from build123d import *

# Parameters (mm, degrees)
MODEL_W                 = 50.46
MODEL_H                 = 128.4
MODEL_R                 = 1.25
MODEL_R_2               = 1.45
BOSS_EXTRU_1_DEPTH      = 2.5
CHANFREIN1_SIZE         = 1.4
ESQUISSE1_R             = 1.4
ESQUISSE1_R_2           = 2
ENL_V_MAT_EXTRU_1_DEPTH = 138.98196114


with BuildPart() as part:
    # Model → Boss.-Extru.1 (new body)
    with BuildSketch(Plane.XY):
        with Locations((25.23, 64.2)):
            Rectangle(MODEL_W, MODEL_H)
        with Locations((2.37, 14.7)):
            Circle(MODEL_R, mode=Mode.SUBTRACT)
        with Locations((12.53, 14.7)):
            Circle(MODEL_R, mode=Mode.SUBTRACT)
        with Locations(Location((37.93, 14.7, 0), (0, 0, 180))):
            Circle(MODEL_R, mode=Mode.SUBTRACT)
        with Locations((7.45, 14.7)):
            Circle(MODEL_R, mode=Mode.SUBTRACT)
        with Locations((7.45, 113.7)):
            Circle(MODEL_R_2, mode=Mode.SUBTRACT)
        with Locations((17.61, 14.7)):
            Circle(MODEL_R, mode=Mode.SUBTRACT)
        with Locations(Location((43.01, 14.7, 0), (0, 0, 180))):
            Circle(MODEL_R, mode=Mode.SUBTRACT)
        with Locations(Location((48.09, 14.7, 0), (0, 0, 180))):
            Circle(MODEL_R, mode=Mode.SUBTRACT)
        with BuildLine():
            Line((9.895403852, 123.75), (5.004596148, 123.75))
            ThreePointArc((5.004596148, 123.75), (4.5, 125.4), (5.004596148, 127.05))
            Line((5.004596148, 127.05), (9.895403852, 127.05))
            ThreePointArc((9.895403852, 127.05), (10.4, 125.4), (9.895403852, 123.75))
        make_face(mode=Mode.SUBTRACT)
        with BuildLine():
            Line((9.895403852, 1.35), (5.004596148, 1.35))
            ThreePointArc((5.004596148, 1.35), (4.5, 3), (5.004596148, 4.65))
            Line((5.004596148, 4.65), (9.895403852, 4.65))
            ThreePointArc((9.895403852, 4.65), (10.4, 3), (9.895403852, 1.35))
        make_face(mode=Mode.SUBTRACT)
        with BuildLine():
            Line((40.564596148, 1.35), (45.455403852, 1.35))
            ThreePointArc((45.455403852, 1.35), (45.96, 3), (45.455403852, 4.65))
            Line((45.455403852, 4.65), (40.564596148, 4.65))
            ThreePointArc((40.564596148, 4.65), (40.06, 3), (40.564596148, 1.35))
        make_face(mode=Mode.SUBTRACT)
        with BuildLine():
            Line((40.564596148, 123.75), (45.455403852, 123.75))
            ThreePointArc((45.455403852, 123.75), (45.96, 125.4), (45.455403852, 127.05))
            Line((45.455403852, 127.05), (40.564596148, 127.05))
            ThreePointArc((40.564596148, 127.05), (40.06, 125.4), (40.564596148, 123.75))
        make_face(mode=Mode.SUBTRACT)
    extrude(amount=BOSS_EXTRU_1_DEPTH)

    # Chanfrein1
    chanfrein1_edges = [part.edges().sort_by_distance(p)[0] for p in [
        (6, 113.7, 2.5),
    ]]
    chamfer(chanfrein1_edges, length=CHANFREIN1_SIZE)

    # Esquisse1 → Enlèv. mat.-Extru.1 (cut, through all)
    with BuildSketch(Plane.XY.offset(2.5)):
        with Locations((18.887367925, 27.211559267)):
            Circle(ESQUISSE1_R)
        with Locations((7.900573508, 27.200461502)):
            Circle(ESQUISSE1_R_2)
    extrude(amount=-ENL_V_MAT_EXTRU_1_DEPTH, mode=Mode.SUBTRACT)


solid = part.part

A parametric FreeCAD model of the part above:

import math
import FreeCAD as App
import Part
import Sketcher

V = App.Vector


def edges_at(feature, points):
    """Names of the edges that pass closest to the given points."""
    edges = feature.Shape.Edges
    near = lambda p: min(range(len(edges)), key=lambda i: edges[i].distToShape(Part.Vertex(*p))[0])
    return sorted({f"Edge{near(p) + 1}" for p in points})

doc = App.newDocument("Part")
body = doc.addObject("PartDesign::Body", "Body")

# Sketch on XY plane
sketch1 = body.newObject("Sketcher::SketchObject", "Sketch")
sketch1.AttachmentSupport = (doc.getObject("XY_Plane"), [""])
sketch1.MapMode = "FlatFace"
sketch1.addGeometry(Part.LineSegment(V(0, 128.4, 0), V(0, 0, 0)), False)
sketch1.addGeometry(Part.LineSegment(V(0, 0, 0), V(50.5, 0, 0)), False)
sketch1.addGeometry(Part.LineSegment(V(50.5, 0, 0), V(50.5, 128.4, 0)), False)
sketch1.addGeometry(Part.LineSegment(V(50.5, 128.4, 0), V(0, 128.4, 0)), False)
sketch1.addGeometry(Part.Circle(V(2.4, 14.7, 0), V(0, 0, 1), 1.2), False)
sketch1.addGeometry(Part.ArcOfCircle(Part.Circle(V(7.5, 3, 0), V(0, 0, 1), 2.9), math.radians(-34), math.radians(34)), False)
sketch1.addGeometry(Part.LineSegment(V(9.9, 1.4, 0), V(5, 1.4, 0)), False)
sketch1.addGeometry(Part.ArcOfCircle(Part.Circle(V(7.4, 3, 0), V(0, 0, 1), 2.9), math.radians(146), math.radians(214)), False)
sketch1.addGeometry(Part.LineSegment(V(5, 4.7, 0), V(9.9, 4.7, 0)), False)
sketch1.addGeometry(Part.Circle(V(7.5, 14.7, 0), V(0, 0, 1), 1.2), False)
sketch1.addGeometry(Part.Circle(V(12.5, 14.7, 0), V(0, 0, 1), 1.2), False)
sketch1.addGeometry(Part.Circle(V(17.6, 14.7, 0), V(0, 0, 1), 1.2), False)
sketch1.addGeometry(Part.LineSegment(V(45.5, 1.4, 0), V(40.6, 1.4, 0)), False)
sketch1.addGeometry(Part.ArcOfCircle(Part.Circle(V(43, 3, 0), V(0, 0, 1), 2.9), math.radians(146), math.radians(214)), False)
sketch1.addGeometry(Part.LineSegment(V(40.6, 4.7, 0), V(45.5, 4.7, 0)), False)
sketch1.addGeometry(Part.ArcOfCircle(Part.Circle(V(43, 3, 0), V(0, 0, 1), 2.9), math.radians(-34), math.radians(34)), False)
sketch1.addGeometry(Part.Circle(V(37.9, 14.7, 0), V(0, 0, 1), 1.2), False)
sketch1.addGeometry(Part.Circle(V(43, 14.7, 0), V(0, 0, 1), 1.2), False)
sketch1.addGeometry(Part.Circle(V(48.1, 14.7, 0), V(0, 0, 1), 1.2), False)
sketch1.addGeometry(Part.Circle(V(7.5, 113.7, 0), V(0, 0, 1), 1.4), False)
sketch1.addGeometry(Part.ArcOfCircle(Part.Circle(V(7.5, 125.4, 0), V(0, 0, 1), 2.9), math.radians(-34), math.radians(34)), False)
sketch1.addGeometry(Part.LineSegment(V(9.9, 123.8, 0), V(5, 123.8, 0)), False)
sketch1.addGeometry(Part.ArcOfCircle(Part.Circle(V(7.4, 125.4, 0), V(0, 0, 1), 2.9), math.radians(146), math.radians(214)), False)
sketch1.addGeometry(Part.LineSegment(V(5, 127, 0), V(9.9, 127, 0)), False)
sketch1.addGeometry(Part.LineSegment(V(45.5, 123.8, 0), V(40.6, 123.8, 0)), False)
sketch1.addGeometry(Part.ArcOfCircle(Part.Circle(V(43, 125.4, 0), V(0, 0, 1), 2.9), math.radians(146), math.radians(214)), False)
sketch1.addGeometry(Part.LineSegment(V(40.6, 127, 0), V(45.5, 127, 0)), False)
sketch1.addGeometry(Part.ArcOfCircle(Part.Circle(V(43, 125.4, 0), V(0, 0, 1), 2.9), math.radians(-34), math.radians(34)), False)
sketch1.addConstraint(Sketcher.Constraint("Coincident", 0, 2, 1, 1))
sketch1.addConstraint(Sketcher.Constraint("Coincident", 1, 2, 2, 1))
sketch1.addConstraint(Sketcher.Constraint("Coincident", 2, 2, 3, 1))
sketch1.addConstraint(Sketcher.Constraint("Coincident", 3, 2, 0, 1))
sketch1.addConstraint(Sketcher.Constraint("Coincident", 5, 1, 6, 1))
sketch1.addConstraint(Sketcher.Constraint("Coincident", 6, 2, 7, 2))
sketch1.addConstraint(Sketcher.Constraint("Coincident", 7, 1, 8, 1))
sketch1.addConstraint(Sketcher.Constraint("Coincident", 8, 2, 5, 2))
sketch1.addConstraint(Sketcher.Constraint("Coincident", 12, 2, 13, 2))
sketch1.addConstraint(Sketcher.Constraint("Coincident", 13, 1, 14, 1))
sketch1.addConstraint(Sketcher.Constraint("Coincident", 14, 2, 15, 2))
sketch1.addConstraint(Sketcher.Constraint("Coincident", 15, 1, 12, 1))
sketch1.addConstraint(Sketcher.Constraint("Coincident", 20, 1, 21, 1))
sketch1.addConstraint(Sketcher.Constraint("Coincident", 21, 2, 22, 2))
sketch1.addConstraint(Sketcher.Constraint("Coincident", 22, 1, 23, 1))
sketch1.addConstraint(Sketcher.Constraint("Coincident", 23, 2, 20, 2))
sketch1.addConstraint(Sketcher.Constraint("Coincident", 24, 2, 25, 2))
sketch1.addConstraint(Sketcher.Constraint("Coincident", 25, 1, 26, 1))
sketch1.addConstraint(Sketcher.Constraint("Coincident", 26, 2, 27, 2))
sketch1.addConstraint(Sketcher.Constraint("Coincident", 27, 1, 24, 1))
sketch1.addConstraint(Sketcher.Constraint("Vertical", 0))
sketch1.addConstraint(Sketcher.Constraint("Horizontal", 1))
sketch1.addConstraint(Sketcher.Constraint("Vertical", 2))
sketch1.addConstraint(Sketcher.Constraint("Horizontal", 3))
sketch1.addConstraint(Sketcher.Constraint("Horizontal", 6))
sketch1.addConstraint(Sketcher.Constraint("Horizontal", 8))
sketch1.addConstraint(Sketcher.Constraint("Horizontal", 12))
sketch1.addConstraint(Sketcher.Constraint("Horizontal", 14))
sketch1.addConstraint(Sketcher.Constraint("Horizontal", 21))
sketch1.addConstraint(Sketcher.Constraint("Horizontal", 23))
sketch1.addConstraint(Sketcher.Constraint("Horizontal", 24))
sketch1.addConstraint(Sketcher.Constraint("Horizontal", 26))
sketch1.addConstraint(Sketcher.Constraint("Coincident", 0, 2, -1, 1))
sketch1.addConstraint(Sketcher.Constraint("Coincident", 7, 3, 5, 3))
sketch1.addConstraint(Sketcher.Constraint("Coincident", 15, 3, 13, 3))
sketch1.addConstraint(Sketcher.Constraint("Coincident", 22, 3, 20, 3))
sketch1.addConstraint(Sketcher.Constraint("Coincident", 27, 3, 25, 3))
sketch1.addConstraint(Sketcher.Constraint("Equal", 5, 7))
sketch1.addConstraint(Sketcher.Constraint("Equal", 4, 9))
sketch1.addConstraint(Sketcher.Constraint("Equal", 9, 10))
sketch1.addConstraint(Sketcher.Constraint("Equal", 10, 11))
sketch1.addConstraint(Sketcher.Constraint("Equal", 7, 13))
sketch1.addConstraint(Sketcher.Constraint("Equal", 13, 15))
sketch1.addConstraint(Sketcher.Constraint("Equal", 11, 16))
sketch1.addConstraint(Sketcher.Constraint("Equal", 16, 17))
sketch1.addConstraint(Sketcher.Constraint("Equal", 17, 18))
sketch1.addConstraint(Sketcher.Constraint("Equal", 15, 20))
sketch1.addConstraint(Sketcher.Constraint("Equal", 20, 22))
sketch1.addConstraint(Sketcher.Constraint("Equal", 22, 25))
sketch1.addConstraint(Sketcher.Constraint("Equal", 25, 27))
sketch1.addConstraint(Sketcher.Constraint("Horizontal", 4, 3, 9, 3))
sketch1.addConstraint(Sketcher.Constraint("Horizontal", 9, 3, 10, 3))
sketch1.addConstraint(Sketcher.Constraint("Horizontal", 10, 3, 11, 3))
sketch1.addConstraint(Sketcher.Constraint("Horizontal", 7, 3, 13, 3))
sketch1.addConstraint(Sketcher.Constraint("Horizontal", 11, 3, 16, 3))
sketch1.addConstraint(Sketcher.Constraint("Horizontal", 16, 3, 17, 3))
sketch1.addConstraint(Sketcher.Constraint("Horizontal", 17, 3, 18, 3))
sketch1.addConstraint(Sketcher.Constraint("Horizontal", 22, 3, 25, 3))
sketch1.addConstraint(Sketcher.Constraint("Horizontal", 6, 2, 12, 2))
sketch1.addConstraint(Sketcher.Constraint("Horizontal", 8, 2, 13, 1))
sketch1.addConstraint(Sketcher.Constraint("Horizontal", 21, 2, 24, 2))
sketch1.addConstraint(Sketcher.Constraint("Horizontal", 23, 2, 25, 1))
sketch1.addConstraint(Sketcher.Constraint("Vertical", 7, 3, 9, 3))
sketch1.addConstraint(Sketcher.Constraint("Vertical", 15, 3, 17, 3))
sketch1.addConstraint(Sketcher.Constraint("Vertical", 9, 3, 19, 3))
sketch1.addConstraint(Sketcher.Constraint("Vertical", 19, 3, 20, 3))
sketch1.addConstraint(Sketcher.Constraint("Vertical", 17, 3, 25, 3))
sketch1.addConstraint(Sketcher.Constraint("Vertical", 6, 2, 7, 1))
sketch1.addConstraint(Sketcher.Constraint("Vertical", 8, 2, 20, 1))
sketch1.addConstraint(Sketcher.Constraint("Vertical", 21, 2, 22, 1))
sketch1.addConstraint(Sketcher.Constraint("Diameter", 4, 2.5))
sketch1.addConstraint(Sketcher.Constraint("Diameter", 19, 2.9))
sketch1.addConstraint(Sketcher.Constraint("Radius", 5, 2.95))
sketch1.addConstraint(Sketcher.Constraint("DistanceY", 0, 2, 0, 1, 128.4))
sketch1.addConstraint(Sketcher.Constraint("DistanceY", -1, 1, 5, 3, 3.0))
sketch1.addConstraint(Sketcher.Constraint("DistanceY", 9, 3, 19, 3, 99.0))
sketch1.addConstraint(Sketcher.Constraint("DistanceY", 27, 3, 2, 2, 3.0))
sketch1.addConstraint(Sketcher.Constraint("DistanceX", 1, 1, 1, 2, 50.46))
sketch1.addConstraint(Sketcher.Constraint("DistanceY", -1, 1, 4, 3, 14.7))
sketch1.addConstraint(Sketcher.Constraint("DistanceX", 11, 3, 13, 3, 25.4))
sketch1.addConstraint(Sketcher.Constraint("DistanceX", 10, 3, 16, 3, 25.4))
sketch1.addConstraint(Sketcher.Constraint("DistanceY", 6, 2, 7, 1, 3.3))
sketch1.addConstraint(Sketcher.Constraint("DistanceX", -1, 1, 4, 3, 2.37))
sketch1.addConstraint(Sketcher.Constraint("DistanceX", -1, 1, 5, 3, 7.45))
sketch1.addConstraint(Sketcher.Constraint("DistanceX", -1, 1, 10, 3, 12.53))
sketch1.addConstraint(Sketcher.Constraint("DistanceX", -1, 1, 11, 3, 17.61))
sketch1.addConstraint(Sketcher.Constraint("DistanceX", -1, 1, 18, 3, 48.09))
pad1 = body.newObject("PartDesign::Pad", "Pad")
pad1.Profile = sketch1
pad1.Length = 2.5
doc.recompute()

chamfer = body.newObject("PartDesign::Chamfer", "Chamfer")
chamfer.Base = (pad1, edges_at(pad1, [(6, 113.7, 2.5)]))
chamfer.Size = 1.4

# Sketch on XY plane
sketch2 = body.newObject("Sketcher::SketchObject", "Sketch001")
sketch2.AttachmentSupport = (doc.getObject("XY_Plane"), [""])
sketch2.MapMode = "FlatFace"
sketch2.AttachmentOffset = App.Placement(V(0, 0, 2.5), App.Rotation())
sketch2.addGeometry(Part.Circle(V(18.9, 27.2, 0), V(0, 0, 1), 1.4), False)
sketch2.addGeometry(Part.Circle(V(7.9, 27.2, 0), V(0, 0, 1), 2), False)
sketch2.addConstraint(Sketcher.Constraint("Diameter", 1, 4.0))
sketch2.addConstraint(Sketcher.Constraint("Diameter", 0, 2.8))
sketch2.addConstraint(Sketcher.Constraint("DistanceY", -1, 1, 0, 3, 27.211559))
sketch2.addConstraint(Sketcher.Constraint("DistanceY", -1, 1, 1, 3, 27.200462))
sketch2.addConstraint(Sketcher.Constraint("DistanceX", -1, 1, 0, 3, 18.887368))
sketch2.addConstraint(Sketcher.Constraint("DistanceX", -1, 1, 1, 3, 7.900574))
pocket1 = body.newObject("PartDesign::Pocket", "Pocket")
pocket1.Profile = sketch2
pocket1.Type = "ThroughAll"

doc.recompute()
